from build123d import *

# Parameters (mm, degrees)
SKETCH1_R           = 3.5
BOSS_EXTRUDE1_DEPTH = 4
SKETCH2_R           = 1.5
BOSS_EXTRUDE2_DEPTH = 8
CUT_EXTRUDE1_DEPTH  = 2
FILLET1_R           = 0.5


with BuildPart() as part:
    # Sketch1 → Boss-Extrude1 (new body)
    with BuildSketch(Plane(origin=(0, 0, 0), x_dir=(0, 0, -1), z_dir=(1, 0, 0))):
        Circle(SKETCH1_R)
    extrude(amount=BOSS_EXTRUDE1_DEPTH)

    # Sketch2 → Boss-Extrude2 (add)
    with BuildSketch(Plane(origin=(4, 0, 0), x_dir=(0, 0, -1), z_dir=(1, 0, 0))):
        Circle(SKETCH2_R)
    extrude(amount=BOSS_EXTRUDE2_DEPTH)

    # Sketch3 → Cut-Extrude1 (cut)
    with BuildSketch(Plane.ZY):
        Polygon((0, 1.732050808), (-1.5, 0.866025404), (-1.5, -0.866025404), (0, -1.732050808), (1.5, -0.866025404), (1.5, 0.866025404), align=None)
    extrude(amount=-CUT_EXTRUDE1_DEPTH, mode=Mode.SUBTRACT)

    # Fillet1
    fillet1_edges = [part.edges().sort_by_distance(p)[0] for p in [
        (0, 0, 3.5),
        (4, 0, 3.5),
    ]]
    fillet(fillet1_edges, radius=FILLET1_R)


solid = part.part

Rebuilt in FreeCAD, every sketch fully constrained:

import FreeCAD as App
import Part
import Sketcher

V = App.Vector
Q = App.Units.Quantity


def edges_at(feature, points):
    """Names of the edges that pass closest to the given points."""
    edges = feature.Shape.Edges
    near = lambda p: min(range(len(edges)), key=lambda i: edges[i].distToShape(Part.Vertex(*p))[0])
    return sorted({f"Edge{near(p) + 1}" for p in points})

doc = App.newDocument("Part")
params = doc.addObject("Spreadsheet::Sheet", "Params")
for row, (alias, value) in enumerate([
    ("sketch1_diameter", "7 mm"),
    ("pad1_length", "4 mm"),
    ("sketch2_diameter", "3 mm"),
    ("pad2_length", "8 mm"),
    ("pocket1_length", "2 mm"),
    ("fillet_radius", "0.5 mm"),
], start=1):
    params.set(f"A{row}", alias)
    params.set(f"B{row}", "=" + value)
    params.setAlias(f"B{row}", alias)

body = doc.addObject("PartDesign::Body", "Body")

sketch1 = doc.addObject("Sketcher::SketchObject", "Sketch")
body.addObject(sketch1)
sketch1.AttachmentSupport = (doc.YZ_Plane, [""])
sketch1.MapMode = "FlatFace"
sketch1.addGeometry(Part.Circle(V(0, 0, 0), V(0, 0, 1), 3.5), False)
sketch1.addConstraint([
    Sketcher.Constraint("Coincident", 0, 3, -1, 1),
    Sketcher.Constraint("Diameter", 0, Q("7 mm")),
])
sketch1.setExpression("Constraints[1]", "Params.sketch1_diameter")
pad1 = doc.addObject("PartDesign::Pad", "Pad")
body.addObject(pad1)
pad1.Profile = sketch1
pad1.setExpression("Length", "Params.pad1_length")

sketch2 = doc.addObject("Sketcher::SketchObject", "Sketch001")
body.addObject(sketch2)
sketch2.AttachmentSupport = (doc.YZ_Plane, [""])
sketch2.MapMode = "FlatFace"
sketch2.AttachmentOffset = App.Placement(V(0, 0, 4), App.Rotation())
sketch2.addGeometry(Part.Circle(V(0, 0, 0), V(0, 0, 1), 1.5), False)
sketch2.addConstraint([
    Sketcher.Constraint("Coincident", 0, 3, -1, 1),
    Sketcher.Constraint("Diameter", 0, Q("3 mm")),
])
sketch2.setExpression("Constraints[1]", "Params.sketch2_diameter")
pad2 = doc.addObject("PartDesign::Pad", "Pad001")
body.addObject(pad2)
pad2.Profile = sketch2
pad2.setExpression("Length", "Params.pad2_length")

sketch3 = doc.addObject("Sketcher::SketchObject", "Sketch002")
body.addObject(sketch3)
sketch3.AttachmentSupport = (doc.YZ_Plane, [""])
sketch3.MapMode = "FlatFace"
sketch3.addGeometry([
    Part.LineSegment(V(1.732051, 0, 0), V(0.866025, -1.5, 0)),
    Part.LineSegment(V(0.866025, -1.5, 0), V(-0.866025, -1.5, 0)),
    Part.LineSegment(V(-0.866025, -1.5, 0), V(-1.732051, 0, 0)),
    Part.LineSegment(V(-1.732051, 0, 0), V(-0.866025, 1.5, 0)),
    Part.LineSegment(V(-0.866025, 1.5, 0), V(0.866025, 1.5, 0)),
    Part.LineSegment(V(0.866025, 1.5, 0), V(1.732051, 0, 0)),
], False)
sketch3.addConstraint([
    Sketcher.Constraint("Coincident", 0, 2, 1, 1),
    Sketcher.Constraint("Coincident", 1, 2, 2, 1),
    Sketcher.Constraint("Coincident", 2, 2, 3, 1),
    Sketcher.Constraint("Coincident", 3, 2, 4, 1),
    Sketcher.Constraint("Coincident", 4, 2, 5, 1),
    Sketcher.Constraint("Coincident", 5, 2, 0, 1),
    Sketcher.Constraint("Horizontal", 1),
    Sketcher.Constraint("Horizontal", 4),
    Sketcher.Constraint("Symmetric", 0, 2, 3, 2, -1, 1),
    Sketcher.Constraint("Symmetric", 2, 2, 5, 2, -1, 1),
    Sketcher.Constraint("PointOnObject", 2, 2, -1),
    Sketcher.Constraint("Parallel", 2, 5),
    Sketcher.Constraint("Vertical", 1, 2, 3, 2),
    Sketcher.Constraint("Angle", 0, Q("-120 deg")),
    Sketcher.Constraint("DistanceY", 1, 2, 3, 2, Q("3 mm")),
    Sketcher.Constraint("DistanceX", 1, 2, 1, 1, Q("1.732051 mm")),
])
pocket1 = doc.addObject("PartDesign::Pocket", "Pocket")
body.addObject(pocket1)
pocket1.Profile = sketch3
pocket1.setExpression("Length", "Params.pocket1_length")
pocket1.Reversed = True
doc.recompute()

fillet = doc.addObject("PartDesign::Fillet", "Fillet")
body.addObject(fillet)
fillet.Base = (pocket1, edges_at(pocket1, [(0, 0, 3.5), (4, 0, 3.5)]))
fillet.setExpression("Radius", "Params.fillet_radius")

doc.recompute()
